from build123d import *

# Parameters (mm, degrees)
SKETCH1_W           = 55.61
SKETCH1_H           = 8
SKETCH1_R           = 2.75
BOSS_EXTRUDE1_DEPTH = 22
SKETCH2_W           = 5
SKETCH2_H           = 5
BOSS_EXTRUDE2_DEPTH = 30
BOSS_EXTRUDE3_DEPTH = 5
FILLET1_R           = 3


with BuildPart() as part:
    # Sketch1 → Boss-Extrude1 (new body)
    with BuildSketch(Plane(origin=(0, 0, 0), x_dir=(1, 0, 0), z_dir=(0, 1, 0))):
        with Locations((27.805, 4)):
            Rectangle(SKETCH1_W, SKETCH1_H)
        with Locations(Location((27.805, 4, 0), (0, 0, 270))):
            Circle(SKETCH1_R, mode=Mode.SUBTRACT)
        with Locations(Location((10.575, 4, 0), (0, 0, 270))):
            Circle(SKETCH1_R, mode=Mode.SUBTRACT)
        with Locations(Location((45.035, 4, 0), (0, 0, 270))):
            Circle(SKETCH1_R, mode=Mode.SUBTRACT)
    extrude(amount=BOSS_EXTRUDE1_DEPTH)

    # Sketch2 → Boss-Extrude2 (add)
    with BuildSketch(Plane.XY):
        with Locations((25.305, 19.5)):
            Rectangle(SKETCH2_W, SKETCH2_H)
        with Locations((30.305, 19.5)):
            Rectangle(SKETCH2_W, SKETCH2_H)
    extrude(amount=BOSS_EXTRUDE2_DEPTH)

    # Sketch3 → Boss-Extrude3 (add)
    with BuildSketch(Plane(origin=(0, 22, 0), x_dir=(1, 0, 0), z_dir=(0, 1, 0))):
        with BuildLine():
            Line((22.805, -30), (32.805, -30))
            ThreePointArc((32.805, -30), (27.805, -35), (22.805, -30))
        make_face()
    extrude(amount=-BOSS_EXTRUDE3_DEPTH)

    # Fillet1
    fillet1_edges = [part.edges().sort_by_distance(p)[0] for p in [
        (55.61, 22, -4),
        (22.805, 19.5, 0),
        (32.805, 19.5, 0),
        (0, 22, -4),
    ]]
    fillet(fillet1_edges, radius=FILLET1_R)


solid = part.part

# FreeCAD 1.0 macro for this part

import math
import FreeCAD as App
import Part
import Sketcher

V = App.Vector
Q = App.Units.Quantity


def edges_at(feature, points):
    """Names of the edges that pass closest to the given points."""
    edges = feature.Shape.Edges
    near = lambda p: min(range(len(edges)), key=lambda i: edges[i].distToShape(Part.Vertex(*p))[0])
    return sorted({f"Edge{near(p) + 1}" for p in points})

doc = App.newDocument("Part")
body = doc.addObject("PartDesign::Body", "Body")

sketch1 = doc.addObject("Sketcher::SketchObject", "Sketch")
body.addObject(sketch1)
sketch1.AttachmentSupport = (doc.XZ_Plane, [""])
sketch1.MapMode = "FlatFace"
sketch1.addGeometry([
    Part.LineSegment(V(0, -8, 0), V(0, 0, 0)),
    Part.LineSegment(V(0, 0, 0), V(55.6, 0, 0)),
    Part.LineSegment(V(55.6, 0, 0), V(55.6, -8, 0)),
    Part.LineSegment(V(55.6, -8, 0), V(0, -8, 0)),
    Part.Circle(V(10.6, -4, 0), V(0, 0, 1), 2.8),
    Part.Circle(V(27.8, -4, 0), V(0, 0, 1), 2.8),
    Part.Circle(V(45, -4, 0), V(0, 0, 1), 2.8),
], False)
sketch1.addConstraint([
    Sketcher.Constraint("Coincident", 0, 2, 1, 1),
    Sketcher.Constraint("Coincident", 1, 2, 2, 1),
    Sketcher.Constraint("Coincident", 2, 2, 3, 1),
    Sketcher.Constraint("Coincident", 3, 2, 0, 1),
    Sketcher.Constraint("Vertical", 0),
    Sketcher.Constraint("Horizontal", 1),
    Sketcher.Constraint("Vertical", 2),
    Sketcher.Constraint("Horizontal", 3),
    Sketcher.Constraint("Coincident", 0, 2, -1, 1),
    Sketcher.Constraint("Equal", 4, 5),
    Sketcher.Constraint("Equal", 5, 6),
    Sketcher.Constraint("Horizontal", 4, 3, 5, 3),
    Sketcher.Constraint("Horizontal", 5, 3, 6, 3),
    Sketcher.Constraint("Diameter", 4, Q("5.5 mm")),
    Sketcher.Constraint("DistanceY", 0, 1, 0, 2, Q("8 mm")),
    Sketcher.Constraint("DistanceY", 4, 3, -1, 1, Q("4 mm")),
    Sketcher.Constraint("DistanceX", 1, 1, 1, 2, Q("55.61 mm")),
    Sketcher.Constraint("DistanceX", 4, 3, 5, 3, Q("17.23 mm")),
    Sketcher.Constraint("DistanceX", 5, 3, 6, 3, Q("17.23 mm")),
    Sketcher.Constraint("DistanceX", -1, 1, 4, 3, Q("10.575 mm")),
])
pad1 = doc.addObject("PartDesign::Pad", "Pad")
body.addObject(pad1)
pad1.Profile = sketch1
pad1.Length = 22
pad1.Reversed = True

sketch2 = doc.addObject("Sketcher::SketchObject", "Sketch001")
body.addObject(sketch2)
sketch2.AttachmentSupport = (doc.XY_Plane, [""])
sketch2.MapMode = "FlatFace"
sketch2.addGeometry([
    Part.LineSegment(V(23, 22, 0), V(23, 17, 0)),
    Part.LineSegment(V(23, 17, 0), V(33, 17, 0)),
    Part.LineSegment(V(33, 17, 0), V(33, 22, 0)),
    Part.LineSegment(V(33, 22, 0), V(23, 22, 0)),
], False)
sketch2.addConstraint([
    Sketcher.Constraint("Coincident", 0, 2, 1, 1),
    Sketcher.Constraint("Coincident", 1, 2, 2, 1),
    Sketcher.Constraint("Coincident", 2, 2, 3, 1),
    Sketcher.Constraint("Coincident", 3, 2, 0, 1),
    Sketcher.Constraint("Vertical", 0),
    Sketcher.Constraint("Horizontal", 1),
    Sketcher.Constraint("Vertical", 2),
    Sketcher.Constraint("Horizontal", 3),
    Sketcher.Constraint("DistanceX", 1, 1, 1, 2, Q("10 mm")),
    Sketcher.Constraint("DistanceY", 0, 2, 0, 1, Q("5 mm")),
    Sketcher.Constraint("DistanceY", -1, 1, 0, 2, Q("17 mm")),
    Sketcher.Constraint("DistanceX", -1, 1, 0, 2, Q("22.805 mm")),
])
pad2 = doc.addObject("PartDesign::Pad", "Pad001")
body.addObject(pad2)
pad2.Profile = sketch2
pad2.Length = 30

sketch3 = doc.addObject("Sketcher::SketchObject", "Sketch002")
body.addObject(sketch3)
sketch3.AttachmentSupport = (doc.XZ_Plane, [""])
sketch3.MapMode = "FlatFace"
sketch3.AttachmentOffset = App.Placement(V(0, 0, -22), App.Rotation())
sketch3.addGeometry([
    Part.LineSegment(V(33, 30, 0), V(23, 30, 0)),
    Part.ArcOfCircle(Part.Circle(V(28, 30, 0), V(0, 0, 1), 5), math.radians(0), math.radians(180)),
], False)
sketch3.addConstraint([
    Sketcher.Constraint("Coincident", 0, 1, 1, 1),
    Sketcher.Constraint("Coincident", 1, 2, 0, 2),
    Sketcher.Constraint("Horizontal", 0),
    Sketcher.Constraint("Horizontal", 1, 3, 0, 1),
    Sketcher.Constraint("Radius", 1, Q("5 mm")),
    Sketcher.Constraint("DistanceY", -1, 1, 1, 3, Q("30 mm")),
    Sketcher.Constraint("DistanceX", -1, 1, 1, 3, Q("27.805 mm")),
])
pad3 = doc.addObject("PartDesign::Pad", "Pad002")
body.addObject(pad3)
pad3.Profile = sketch3
pad3.Length = 5
doc.recompute()

fillet = doc.addObject("PartDesign::Fillet", "Fillet")
body.addObject(fillet)
fillet.Base = (pad3, edges_at(pad3, [
    (55.61, 22, -4),
    (22.805, 19.5, 0),
    (32.805, 19.5, 0),
    (0, 22, -4),
]))
fillet.Radius = 3

doc.recompute()
